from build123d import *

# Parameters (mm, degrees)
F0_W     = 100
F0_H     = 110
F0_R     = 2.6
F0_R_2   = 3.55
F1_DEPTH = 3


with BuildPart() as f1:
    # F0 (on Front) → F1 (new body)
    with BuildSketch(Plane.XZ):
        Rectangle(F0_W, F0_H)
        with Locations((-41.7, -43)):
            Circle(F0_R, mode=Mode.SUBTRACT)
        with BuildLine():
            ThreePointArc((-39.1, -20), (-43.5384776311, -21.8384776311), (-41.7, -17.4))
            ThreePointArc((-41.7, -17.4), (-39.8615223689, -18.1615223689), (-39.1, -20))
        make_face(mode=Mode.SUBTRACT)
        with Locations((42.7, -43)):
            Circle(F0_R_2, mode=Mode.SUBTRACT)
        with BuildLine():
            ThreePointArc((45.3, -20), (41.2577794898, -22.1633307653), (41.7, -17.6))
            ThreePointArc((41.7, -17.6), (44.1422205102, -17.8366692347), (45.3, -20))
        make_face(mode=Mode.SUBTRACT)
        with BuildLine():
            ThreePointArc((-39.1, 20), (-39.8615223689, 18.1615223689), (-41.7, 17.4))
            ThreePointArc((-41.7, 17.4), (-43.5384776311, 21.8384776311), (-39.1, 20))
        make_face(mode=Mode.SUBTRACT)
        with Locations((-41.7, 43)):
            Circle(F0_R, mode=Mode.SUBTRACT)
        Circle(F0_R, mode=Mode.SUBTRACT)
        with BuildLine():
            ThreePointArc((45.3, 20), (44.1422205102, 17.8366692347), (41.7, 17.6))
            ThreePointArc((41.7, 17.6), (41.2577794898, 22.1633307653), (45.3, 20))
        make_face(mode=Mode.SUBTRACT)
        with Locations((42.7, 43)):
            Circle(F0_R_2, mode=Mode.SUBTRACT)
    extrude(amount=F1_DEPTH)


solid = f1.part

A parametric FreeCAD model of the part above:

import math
import FreeCAD as App
import Part
import Sketcher
from FreeCAD import Vector


def add_polygon(sketch, points):
    """Adds a closed chain of lines whose ends are joined by coincident constraints."""
    first, n = sketch.GeometryCount, len(points)
    for a, b in zip(points, points[1:] + points[:1]):
        sketch.addGeometry(Part.LineSegment(App.Vector(*a, 0), App.Vector(*b, 0)), False)
    for i in range(n):
        sketch.addConstraint(Sketcher.Constraint("Coincident", first + i, 2, first + (i + 1) % n, 1))

doc = App.newDocument("Part")
params = doc.addObject("Spreadsheet::Sheet", "Params")
for row, (alias, value) in enumerate([
    ("sketch1_diameter", "5.2 mm"),
    ("sketch1_diameter2", "7.1 mm"),
    ("sketch1_width", "100 mm"),
    ("sketch1_height", "110 mm"),
    ("pad1_length", "3 mm"),
], start=1):
    params.set(f"A{row}", alias)
    params.set(f"B{row}", "=" + value)
    params.setAlias(f"B{row}", alias)

body = doc.addObject("PartDesign::Body", "Body")

sketch1 = doc.addObject("Sketcher::SketchObject", "Sketch")
body.addObject(sketch1)
sketch1.AttachmentSupport = (doc.XZ_Plane, [""])
sketch1.MapMode = "FlatFace"
add_polygon(sketch1, [(-50, 55), (-50, -55), (50, -55), (50, 55)])
sketch1.addGeometry(Part.Circle(Vector(-41.7, -43, 0), Vector(0, 0, 1), 2.6), False)
sketch1.addGeometry(Part.ArcOfCircle(Part.Circle(Vector(-41.7, -20, 0), Vector(0, 0, 1), 2.6), math.radians(0), math.radians(90)), False)
sketch1.addGeometry(Part.ArcOfCircle(Part.Circle(Vector(-41.7, -20, 0), Vector(0, 0, 1), 2.6), math.radians(90), math.radians(360)), False)
sketch1.addGeometry(Part.Circle(Vector(42.7, -43, 0), Vector(0, 0, 1), 3.5), False)
sketch1.addGeometry(Part.ArcOfCircle(Part.Circle(Vector(42.7, -20, 0), Vector(0, 0, 1), 2.6), math.radians(0), math.radians(113)), False)
sketch1.addGeometry(Part.ArcOfCircle(Part.Circle(Vector(42.7, -20, 0), Vector(0, 0, 1), 2.6), math.radians(113), math.radians(360)), False)
sketch1.addGeometry(Part.ArcOfCircle(Part.Circle(Vector(-41.7, 20, 0), Vector(0, 0, 1), 2.6), math.radians(0), math.radians(270)), False)
sketch1.addGeometry(Part.ArcOfCircle(Part.Circle(Vector(-41.7, 20, 0), Vector(0, 0, 1), 2.6), math.radians(-90), math.radians(0)), False)
sketch1.addGeometry(Part.Circle(Vector(0, 0, 0), Vector(0, 0, 1), 2.6), False)
sketch1.addGeometry(Part.Circle(Vector(-41.7, 43, 0), Vector(0, 0, 1), 2.6), False)
sketch1.addGeometry(Part.ArcOfCircle(Part.Circle(Vector(42.7, 20, 0), Vector(0, 0, 1), 2.6), math.radians(0), math.radians(247)), False)
sketch1.addGeometry(Part.ArcOfCircle(Part.Circle(Vector(42.7, 20, 0), Vector(0, 0, 1), 2.6), math.radians(-113), math.radians(0)), False)
sketch1.addGeometry(Part.Circle(Vector(42.7, 43, 0), Vector(0, 0, 1), 3.5), False)
sketch1.addConstraint(Sketcher.Constraint("Tangent", 5, 1, 6, 2))
sketch1.addConstraint(Sketcher.Constraint("Coincident", 6, 1, 5, 2))
sketch1.addConstraint(Sketcher.Constraint("Tangent", 8, 1, 9, 2))
sketch1.addConstraint(Sketcher.Constraint("Coincident", 9, 1, 8, 2))
sketch1.addConstraint(Sketcher.Constraint("Tangent", 10, 1, 11, 2))
sketch1.addConstraint(Sketcher.Constraint("Coincident", 11, 1, 10, 2))
sketch1.addConstraint(Sketcher.Constraint("Tangent", 14, 1, 15, 2))
sketch1.addConstraint(Sketcher.Constraint("Coincident", 15, 1, 14, 2))
sketch1.addConstraint(Sketcher.Constraint("Vertical", 0))
sketch1.addConstraint(Sketcher.Constraint("Horizontal", 1))
sketch1.addConstraint(Sketcher.Constraint("Vertical", 2))
sketch1.addConstraint(Sketcher.Constraint("Horizontal", 3))
sketch1.addConstraint(Sketcher.Constraint("Coincident", 12, 3, -1, 1))
sketch1.addConstraint(Sketcher.Constraint("Equal", 4, 5))
sketch1.addConstraint(Sketcher.Constraint("Equal", 6, 8))
sketch1.addConstraint(Sketcher.Constraint("Equal", 9, 10))
sketch1.addConstraint(Sketcher.Constraint("Equal", 11, 12))
sketch1.addConstraint(Sketcher.Constraint("Equal", 12, 13))
sketch1.addConstraint(Sketcher.Constraint("Equal", 13, 14))
sketch1.addConstraint(Sketcher.Constraint("Equal", 7, 16))
sketch1.addConstraint(Sketcher.Constraint("Symmetric", 0, 2, 2, 2, -1, 1))
sketch1.addConstraint(Sketcher.Constraint("Symmetric", 5, 3, 10, 3, -1))
sketch1.addConstraint(Sketcher.Constraint("Symmetric", 4, 3, 13, 3, -1))
sketch1.addConstraint(Sketcher.Constraint("Symmetric", 8, 3, 14, 3, -1))
sketch1.addConstraint(Sketcher.Constraint("Symmetric", 7, 3, 16, 3, -1))
sketch1.addConstraint(Sketcher.Constraint("Horizontal", 4, 3, 7, 3))
sketch1.addConstraint(Sketcher.Constraint("Horizontal", 6, 3, 8, 3))
sketch1.addConstraint(Sketcher.Constraint("Horizontal", 9, 3, 5, 1))
sketch1.addConstraint(Sketcher.Constraint("Horizontal", 5, 1, 8, 1))
sketch1.addConstraint(Sketcher.Constraint("Horizontal", 15, 3, 10, 1))
sketch1.addConstraint(Sketcher.Constraint("Horizontal", 10, 1, 14, 1))
sketch1.addConstraint(Sketcher.Constraint("Vertical", 4, 3, 5, 3))
sketch1.addConstraint(Sketcher.Constraint("Vertical", 7, 3, 8, 3))
sketch1.addConstraint(Sketcher.Constraint("Vertical", 13, 3, 6, 1))
sketch1.addConstraint(Sketcher.Constraint("Vertical", 6, 1, 11, 1))
sketch1.addConstraint(Sketcher.Constraint("Vertical", 9, 1, 15, 1))
sketch1.addConstraint(Sketcher.Constraint("Diameter", 4, 5.2))
sketch1.addConstraint(Sketcher.Constraint("Diameter", 7, 7.1))
sketch1.addConstraint(Sketcher.Constraint("DistanceX", 1, 1, 1, 2, 100.0))
sketch1.addConstraint(Sketcher.Constraint("DistanceY", 0, 2, 0, 1, 110.0))
sketch1.addConstraint(Sketcher.Constraint("DistanceY", 4, 3, -1, 1, 43.0))
sketch1.addConstraint(Sketcher.Constraint("DistanceY", 5, 3, -1, 1, 20.0))
sketch1.addConstraint(Sketcher.Constraint("DistanceX", 9, 1, 8, 3, 1.0))
sketch1.addConstraint(Sketcher.Constraint("DistanceX", 4, 3, -1, 1, 41.7))
sketch1.addConstraint(Sketcher.Constraint("DistanceX", -1, 1, 7, 3, 42.7))
sketch1.setExpression("Constraints[40]", "Params.sketch1_diameter")
sketch1.setExpression("Constraints[41]", "Params.sketch1_diameter2")
sketch1.setExpression("Constraints[42]", "Params.sketch1_width")
sketch1.setExpression("Constraints[43]", "Params.sketch1_height")
pad1 = doc.addObject("PartDesign::Pad", "Pad")
body.addObject(pad1)
pad1.Profile = sketch1
pad1.setExpression("Length", "Params.pad1_length")

doc.recompute()
